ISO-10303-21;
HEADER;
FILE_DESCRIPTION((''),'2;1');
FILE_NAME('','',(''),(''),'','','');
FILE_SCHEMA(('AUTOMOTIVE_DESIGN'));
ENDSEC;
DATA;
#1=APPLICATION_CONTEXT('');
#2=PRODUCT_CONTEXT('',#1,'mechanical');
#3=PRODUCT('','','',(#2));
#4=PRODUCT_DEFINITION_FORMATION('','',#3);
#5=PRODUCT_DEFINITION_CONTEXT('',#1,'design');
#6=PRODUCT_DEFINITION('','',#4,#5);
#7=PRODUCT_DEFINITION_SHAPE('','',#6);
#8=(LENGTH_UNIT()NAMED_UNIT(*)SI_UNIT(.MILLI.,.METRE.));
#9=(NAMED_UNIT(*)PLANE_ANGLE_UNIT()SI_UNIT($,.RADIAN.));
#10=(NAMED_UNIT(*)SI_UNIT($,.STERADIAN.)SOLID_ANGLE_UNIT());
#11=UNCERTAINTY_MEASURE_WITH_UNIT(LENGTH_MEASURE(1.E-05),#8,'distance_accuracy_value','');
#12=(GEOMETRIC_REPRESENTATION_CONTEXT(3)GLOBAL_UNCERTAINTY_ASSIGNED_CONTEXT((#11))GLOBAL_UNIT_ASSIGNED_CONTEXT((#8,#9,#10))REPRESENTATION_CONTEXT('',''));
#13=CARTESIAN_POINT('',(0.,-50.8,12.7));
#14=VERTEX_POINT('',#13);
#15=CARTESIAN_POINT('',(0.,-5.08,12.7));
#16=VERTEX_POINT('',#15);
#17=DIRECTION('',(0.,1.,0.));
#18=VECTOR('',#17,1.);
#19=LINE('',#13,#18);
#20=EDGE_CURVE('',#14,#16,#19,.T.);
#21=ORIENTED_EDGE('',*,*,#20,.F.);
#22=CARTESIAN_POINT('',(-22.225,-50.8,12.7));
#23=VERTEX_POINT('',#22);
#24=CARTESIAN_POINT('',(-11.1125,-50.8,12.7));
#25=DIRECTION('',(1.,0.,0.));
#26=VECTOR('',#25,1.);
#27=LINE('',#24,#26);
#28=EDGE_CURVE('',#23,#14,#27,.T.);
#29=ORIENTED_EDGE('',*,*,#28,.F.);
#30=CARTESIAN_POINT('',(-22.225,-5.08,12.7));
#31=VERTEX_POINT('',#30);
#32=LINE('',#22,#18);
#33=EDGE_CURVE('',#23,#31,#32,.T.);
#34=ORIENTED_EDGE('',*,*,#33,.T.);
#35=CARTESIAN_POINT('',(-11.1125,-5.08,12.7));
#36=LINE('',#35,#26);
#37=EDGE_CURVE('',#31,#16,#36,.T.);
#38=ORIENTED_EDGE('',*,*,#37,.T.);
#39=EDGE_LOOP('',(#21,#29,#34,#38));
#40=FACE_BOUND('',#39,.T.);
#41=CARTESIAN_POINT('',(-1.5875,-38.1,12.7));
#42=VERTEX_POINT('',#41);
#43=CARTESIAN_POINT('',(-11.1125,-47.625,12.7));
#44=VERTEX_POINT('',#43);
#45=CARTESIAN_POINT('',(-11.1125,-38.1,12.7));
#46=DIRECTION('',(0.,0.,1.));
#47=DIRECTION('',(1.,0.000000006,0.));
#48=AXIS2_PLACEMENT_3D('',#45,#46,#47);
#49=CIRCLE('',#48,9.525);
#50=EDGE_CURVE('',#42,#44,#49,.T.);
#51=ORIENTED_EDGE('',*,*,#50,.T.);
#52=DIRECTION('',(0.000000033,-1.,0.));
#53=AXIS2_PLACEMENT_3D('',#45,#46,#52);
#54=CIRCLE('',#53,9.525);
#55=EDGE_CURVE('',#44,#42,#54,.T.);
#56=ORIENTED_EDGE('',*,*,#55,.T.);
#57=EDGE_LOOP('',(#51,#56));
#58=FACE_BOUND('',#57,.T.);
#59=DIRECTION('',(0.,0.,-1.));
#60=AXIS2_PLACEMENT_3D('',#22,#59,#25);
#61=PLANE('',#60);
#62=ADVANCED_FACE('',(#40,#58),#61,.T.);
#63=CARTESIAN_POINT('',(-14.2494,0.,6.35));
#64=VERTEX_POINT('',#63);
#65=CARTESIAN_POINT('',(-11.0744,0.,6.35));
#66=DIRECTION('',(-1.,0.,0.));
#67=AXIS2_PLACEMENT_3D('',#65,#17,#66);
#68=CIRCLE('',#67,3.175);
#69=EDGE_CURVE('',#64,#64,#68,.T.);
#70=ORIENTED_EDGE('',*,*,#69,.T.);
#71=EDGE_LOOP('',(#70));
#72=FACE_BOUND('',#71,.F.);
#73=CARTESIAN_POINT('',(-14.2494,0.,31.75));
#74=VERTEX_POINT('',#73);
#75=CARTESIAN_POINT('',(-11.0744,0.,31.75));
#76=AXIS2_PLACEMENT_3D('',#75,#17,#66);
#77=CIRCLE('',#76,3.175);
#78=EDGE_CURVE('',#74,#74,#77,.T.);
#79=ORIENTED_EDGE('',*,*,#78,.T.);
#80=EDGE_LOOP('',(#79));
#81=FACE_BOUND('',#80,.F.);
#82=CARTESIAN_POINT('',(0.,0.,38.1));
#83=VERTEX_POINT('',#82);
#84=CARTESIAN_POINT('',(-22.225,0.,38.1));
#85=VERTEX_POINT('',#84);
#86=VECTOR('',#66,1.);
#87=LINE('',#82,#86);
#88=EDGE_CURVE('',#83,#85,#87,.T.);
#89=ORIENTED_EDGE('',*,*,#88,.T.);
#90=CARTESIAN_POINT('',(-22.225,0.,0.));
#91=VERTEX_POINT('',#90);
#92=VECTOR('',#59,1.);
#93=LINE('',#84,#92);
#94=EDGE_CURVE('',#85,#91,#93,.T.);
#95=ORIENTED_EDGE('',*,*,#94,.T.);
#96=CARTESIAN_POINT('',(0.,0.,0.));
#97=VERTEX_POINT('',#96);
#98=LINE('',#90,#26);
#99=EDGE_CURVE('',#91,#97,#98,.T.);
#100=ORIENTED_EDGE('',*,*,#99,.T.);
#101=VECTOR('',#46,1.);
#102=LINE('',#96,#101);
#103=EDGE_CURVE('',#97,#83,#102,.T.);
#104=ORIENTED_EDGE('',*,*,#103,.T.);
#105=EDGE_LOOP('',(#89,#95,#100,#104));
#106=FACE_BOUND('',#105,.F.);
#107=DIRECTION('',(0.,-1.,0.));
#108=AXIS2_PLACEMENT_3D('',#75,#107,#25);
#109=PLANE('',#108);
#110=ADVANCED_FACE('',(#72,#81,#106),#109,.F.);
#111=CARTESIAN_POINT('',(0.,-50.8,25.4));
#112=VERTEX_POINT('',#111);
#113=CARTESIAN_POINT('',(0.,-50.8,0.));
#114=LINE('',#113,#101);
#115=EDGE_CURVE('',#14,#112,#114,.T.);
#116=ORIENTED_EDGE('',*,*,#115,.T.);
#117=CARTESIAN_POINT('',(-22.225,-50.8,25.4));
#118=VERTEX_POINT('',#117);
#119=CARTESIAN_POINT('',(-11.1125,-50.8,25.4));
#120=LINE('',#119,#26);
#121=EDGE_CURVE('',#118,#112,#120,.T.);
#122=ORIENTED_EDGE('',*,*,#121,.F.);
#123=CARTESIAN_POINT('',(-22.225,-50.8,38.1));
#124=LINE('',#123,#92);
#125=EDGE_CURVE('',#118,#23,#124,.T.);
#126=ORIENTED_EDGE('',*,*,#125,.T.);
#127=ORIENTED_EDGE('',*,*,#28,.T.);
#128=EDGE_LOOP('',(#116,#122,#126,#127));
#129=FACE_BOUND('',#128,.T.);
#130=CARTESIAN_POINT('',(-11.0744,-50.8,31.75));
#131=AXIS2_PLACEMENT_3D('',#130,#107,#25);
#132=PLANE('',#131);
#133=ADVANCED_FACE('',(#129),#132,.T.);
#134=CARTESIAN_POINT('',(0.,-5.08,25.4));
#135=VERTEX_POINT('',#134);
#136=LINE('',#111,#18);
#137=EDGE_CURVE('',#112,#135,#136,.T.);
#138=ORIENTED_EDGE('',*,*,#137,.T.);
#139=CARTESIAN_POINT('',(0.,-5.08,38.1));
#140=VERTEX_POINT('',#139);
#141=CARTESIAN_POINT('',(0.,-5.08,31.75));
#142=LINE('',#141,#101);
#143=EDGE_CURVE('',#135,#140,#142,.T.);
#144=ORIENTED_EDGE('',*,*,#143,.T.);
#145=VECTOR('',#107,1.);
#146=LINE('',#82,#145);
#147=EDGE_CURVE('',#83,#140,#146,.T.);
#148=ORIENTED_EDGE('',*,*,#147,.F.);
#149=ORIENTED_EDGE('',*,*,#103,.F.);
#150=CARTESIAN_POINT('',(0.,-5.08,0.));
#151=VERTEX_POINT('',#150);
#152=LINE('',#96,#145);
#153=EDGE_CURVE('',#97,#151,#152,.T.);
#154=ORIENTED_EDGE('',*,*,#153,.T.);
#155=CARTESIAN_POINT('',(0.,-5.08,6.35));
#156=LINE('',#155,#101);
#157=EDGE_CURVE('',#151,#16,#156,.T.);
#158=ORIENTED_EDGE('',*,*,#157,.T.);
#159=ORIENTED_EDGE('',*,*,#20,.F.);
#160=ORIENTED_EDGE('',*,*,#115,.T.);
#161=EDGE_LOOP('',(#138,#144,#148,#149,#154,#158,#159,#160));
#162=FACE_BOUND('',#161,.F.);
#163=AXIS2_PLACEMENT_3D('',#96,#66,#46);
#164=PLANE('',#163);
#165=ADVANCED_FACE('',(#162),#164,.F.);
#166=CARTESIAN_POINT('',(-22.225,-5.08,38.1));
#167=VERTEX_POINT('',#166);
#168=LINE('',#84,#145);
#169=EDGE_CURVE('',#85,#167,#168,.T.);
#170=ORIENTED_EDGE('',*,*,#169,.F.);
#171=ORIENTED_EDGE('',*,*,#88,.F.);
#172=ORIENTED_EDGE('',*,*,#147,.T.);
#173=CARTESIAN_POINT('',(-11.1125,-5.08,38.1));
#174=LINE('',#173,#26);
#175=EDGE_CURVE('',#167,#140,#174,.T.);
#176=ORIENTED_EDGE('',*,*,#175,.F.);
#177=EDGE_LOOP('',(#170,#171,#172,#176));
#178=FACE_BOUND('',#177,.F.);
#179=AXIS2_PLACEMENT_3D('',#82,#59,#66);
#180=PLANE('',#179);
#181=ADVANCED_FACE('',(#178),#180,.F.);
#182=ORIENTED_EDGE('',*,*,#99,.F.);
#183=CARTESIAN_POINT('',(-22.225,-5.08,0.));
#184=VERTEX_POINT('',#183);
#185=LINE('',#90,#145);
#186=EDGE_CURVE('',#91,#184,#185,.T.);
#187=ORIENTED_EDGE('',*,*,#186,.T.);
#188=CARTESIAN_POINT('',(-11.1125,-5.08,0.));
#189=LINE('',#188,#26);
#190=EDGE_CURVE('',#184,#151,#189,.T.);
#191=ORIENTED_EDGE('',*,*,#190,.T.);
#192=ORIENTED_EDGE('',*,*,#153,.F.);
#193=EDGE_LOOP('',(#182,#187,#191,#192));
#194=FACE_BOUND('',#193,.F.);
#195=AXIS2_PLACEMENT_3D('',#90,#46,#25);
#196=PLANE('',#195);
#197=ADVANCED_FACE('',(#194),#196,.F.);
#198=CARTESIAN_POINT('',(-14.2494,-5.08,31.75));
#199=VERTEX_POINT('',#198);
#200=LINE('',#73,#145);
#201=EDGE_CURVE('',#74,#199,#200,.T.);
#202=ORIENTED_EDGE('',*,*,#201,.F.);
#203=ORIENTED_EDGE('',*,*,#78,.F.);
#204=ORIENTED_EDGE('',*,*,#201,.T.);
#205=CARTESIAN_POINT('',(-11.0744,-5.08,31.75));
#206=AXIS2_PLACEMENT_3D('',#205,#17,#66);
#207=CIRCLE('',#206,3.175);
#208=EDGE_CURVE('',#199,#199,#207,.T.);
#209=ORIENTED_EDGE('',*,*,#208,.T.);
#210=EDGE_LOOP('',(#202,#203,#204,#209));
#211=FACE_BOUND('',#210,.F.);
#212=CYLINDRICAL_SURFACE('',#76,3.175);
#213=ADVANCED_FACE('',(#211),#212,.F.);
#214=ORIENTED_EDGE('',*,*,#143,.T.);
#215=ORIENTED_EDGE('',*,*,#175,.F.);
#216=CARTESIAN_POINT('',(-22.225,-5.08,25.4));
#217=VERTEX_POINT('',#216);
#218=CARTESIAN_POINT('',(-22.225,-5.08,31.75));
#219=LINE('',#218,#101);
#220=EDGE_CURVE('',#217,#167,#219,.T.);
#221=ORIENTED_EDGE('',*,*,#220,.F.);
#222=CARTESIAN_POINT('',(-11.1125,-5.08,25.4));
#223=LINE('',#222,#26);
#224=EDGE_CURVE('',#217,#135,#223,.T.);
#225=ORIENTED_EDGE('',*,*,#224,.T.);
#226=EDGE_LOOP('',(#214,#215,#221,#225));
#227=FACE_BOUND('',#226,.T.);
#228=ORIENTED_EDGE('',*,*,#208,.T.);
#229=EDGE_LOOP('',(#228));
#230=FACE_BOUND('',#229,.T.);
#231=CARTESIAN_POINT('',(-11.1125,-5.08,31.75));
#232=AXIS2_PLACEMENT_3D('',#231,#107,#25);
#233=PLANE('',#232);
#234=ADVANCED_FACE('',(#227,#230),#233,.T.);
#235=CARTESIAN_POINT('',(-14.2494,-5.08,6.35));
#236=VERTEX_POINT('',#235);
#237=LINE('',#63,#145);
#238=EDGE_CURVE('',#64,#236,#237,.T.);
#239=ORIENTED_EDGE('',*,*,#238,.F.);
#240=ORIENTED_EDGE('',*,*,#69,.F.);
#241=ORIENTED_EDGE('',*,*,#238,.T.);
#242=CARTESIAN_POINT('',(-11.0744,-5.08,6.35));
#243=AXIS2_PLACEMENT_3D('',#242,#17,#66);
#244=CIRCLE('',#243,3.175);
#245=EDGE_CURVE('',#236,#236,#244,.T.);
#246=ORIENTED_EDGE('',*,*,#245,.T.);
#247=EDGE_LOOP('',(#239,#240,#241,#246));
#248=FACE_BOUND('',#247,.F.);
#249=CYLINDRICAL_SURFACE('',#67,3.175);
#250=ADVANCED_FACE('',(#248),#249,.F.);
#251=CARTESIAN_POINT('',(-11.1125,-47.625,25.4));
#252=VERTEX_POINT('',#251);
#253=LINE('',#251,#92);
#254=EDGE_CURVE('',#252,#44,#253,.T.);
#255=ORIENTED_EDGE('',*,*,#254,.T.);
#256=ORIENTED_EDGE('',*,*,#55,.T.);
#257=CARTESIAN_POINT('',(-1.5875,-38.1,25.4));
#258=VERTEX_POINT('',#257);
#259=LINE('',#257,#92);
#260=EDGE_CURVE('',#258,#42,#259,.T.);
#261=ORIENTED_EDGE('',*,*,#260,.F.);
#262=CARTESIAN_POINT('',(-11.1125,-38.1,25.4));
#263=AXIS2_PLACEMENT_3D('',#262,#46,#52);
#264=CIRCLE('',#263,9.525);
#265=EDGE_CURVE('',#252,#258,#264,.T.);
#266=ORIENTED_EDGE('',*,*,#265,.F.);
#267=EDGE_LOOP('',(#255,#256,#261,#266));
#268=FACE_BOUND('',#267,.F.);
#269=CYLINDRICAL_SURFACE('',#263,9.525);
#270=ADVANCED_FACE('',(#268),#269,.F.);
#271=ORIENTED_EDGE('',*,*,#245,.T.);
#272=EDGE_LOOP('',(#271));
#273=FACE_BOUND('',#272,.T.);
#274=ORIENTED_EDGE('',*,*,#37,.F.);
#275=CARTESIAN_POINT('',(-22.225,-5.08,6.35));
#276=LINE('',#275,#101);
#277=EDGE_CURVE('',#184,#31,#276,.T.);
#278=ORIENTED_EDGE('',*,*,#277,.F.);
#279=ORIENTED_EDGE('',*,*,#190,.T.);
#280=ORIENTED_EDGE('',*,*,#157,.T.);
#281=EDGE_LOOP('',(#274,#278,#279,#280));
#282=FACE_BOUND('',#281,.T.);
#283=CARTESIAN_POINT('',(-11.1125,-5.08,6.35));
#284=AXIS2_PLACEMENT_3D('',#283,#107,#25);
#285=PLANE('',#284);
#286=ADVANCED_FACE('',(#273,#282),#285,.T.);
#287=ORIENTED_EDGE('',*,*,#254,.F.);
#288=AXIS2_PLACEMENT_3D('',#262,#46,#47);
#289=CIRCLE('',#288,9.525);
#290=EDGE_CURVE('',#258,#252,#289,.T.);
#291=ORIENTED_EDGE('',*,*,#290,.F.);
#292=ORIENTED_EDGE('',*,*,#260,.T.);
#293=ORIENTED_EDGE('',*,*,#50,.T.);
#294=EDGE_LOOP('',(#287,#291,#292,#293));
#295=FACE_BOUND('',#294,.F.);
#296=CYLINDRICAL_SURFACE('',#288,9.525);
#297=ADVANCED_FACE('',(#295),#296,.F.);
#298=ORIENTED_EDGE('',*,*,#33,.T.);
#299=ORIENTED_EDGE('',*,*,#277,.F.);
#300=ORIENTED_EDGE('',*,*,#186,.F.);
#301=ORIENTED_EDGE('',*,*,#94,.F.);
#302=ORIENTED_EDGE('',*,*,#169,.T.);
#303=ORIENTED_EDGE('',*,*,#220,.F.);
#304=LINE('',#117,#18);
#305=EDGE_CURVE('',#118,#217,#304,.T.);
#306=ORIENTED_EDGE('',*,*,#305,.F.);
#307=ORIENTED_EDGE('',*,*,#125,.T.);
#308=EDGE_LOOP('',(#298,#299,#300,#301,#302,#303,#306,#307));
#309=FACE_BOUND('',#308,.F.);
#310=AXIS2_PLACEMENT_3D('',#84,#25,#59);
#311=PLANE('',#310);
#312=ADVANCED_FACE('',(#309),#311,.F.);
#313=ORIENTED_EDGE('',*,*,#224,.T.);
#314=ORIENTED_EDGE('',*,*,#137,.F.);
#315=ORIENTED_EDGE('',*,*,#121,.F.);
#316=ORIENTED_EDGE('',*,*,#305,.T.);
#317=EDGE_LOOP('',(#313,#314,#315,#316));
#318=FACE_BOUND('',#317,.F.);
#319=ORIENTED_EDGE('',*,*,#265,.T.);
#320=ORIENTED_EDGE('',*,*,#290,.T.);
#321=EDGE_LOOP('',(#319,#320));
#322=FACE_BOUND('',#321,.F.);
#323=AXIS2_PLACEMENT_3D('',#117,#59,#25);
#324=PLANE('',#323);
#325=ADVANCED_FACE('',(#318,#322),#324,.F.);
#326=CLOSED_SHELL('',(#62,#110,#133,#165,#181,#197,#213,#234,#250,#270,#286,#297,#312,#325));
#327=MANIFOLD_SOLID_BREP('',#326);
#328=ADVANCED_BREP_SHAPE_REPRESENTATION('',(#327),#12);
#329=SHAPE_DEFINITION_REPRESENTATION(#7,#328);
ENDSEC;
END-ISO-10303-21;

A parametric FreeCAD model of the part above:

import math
import FreeCAD as App
import Part
import Sketcher
Q = App.Units.Quantity

doc = App.newDocument("Part")
body = doc.addObject("PartDesign::Body", "Body")

# Sketch on XZ plane
sketch1 = body.newObject("Sketcher::SketchObject", "Sketch")
sketch1.AttachmentSupport = (doc.getObject("XZ_Plane"), [""])
sketch1.MapMode = "FlatFace"
sketch1.addGeometry([
    Part.LineSegment(App.Vector(-22.2, 0, 0), App.Vector(0, 0, 0)),  # 0
    Part.LineSegment(App.Vector(0, 0, 0), App.Vector(0, 38.1, 0)),  # 1
    Part.LineSegment(App.Vector(0, 38.1, 0), App.Vector(-22.2, 38.1, 0)),  # 2
    Part.LineSegment(App.Vector(-22.2, 38.1, 0), App.Vector(-22.2, 0, 0)),  # 3
    Part.Circle(App.Vector(-11.1, 6.3, 0), App.Vector(0, 0, 1), 3.2),  # 4
    Part.Circle(App.Vector(-11.1, 31.8, 0), App.Vector(0, 0, 1), 3.2),  # 5
], False)
sketch1.addConstraint([
    Sketcher.Constraint("Coincident", 0, 2, 1, 1),
    Sketcher.Constraint("Coincident", 1, 2, 2, 1),
    Sketcher.Constraint("Coincident", 2, 2, 3, 1),
    Sketcher.Constraint("Coincident", 3, 2, 0, 1),
    Sketcher.Constraint("Horizontal", 0),
    Sketcher.Constraint("Vertical", 1),
    Sketcher.Constraint("Horizontal", 2),
    Sketcher.Constraint("Vertical", 3),
    Sketcher.Constraint("Coincident", 0, 2, -1, 1),
    Sketcher.Constraint("Equal", 4, 5),
    Sketcher.Constraint("Vertical", 4, 3, 5, 3),
    Sketcher.Constraint("Diameter", 4, Q("0.25 in")),
    Sketcher.Constraint("DistanceY", 1, 1, 1, 2, Q("1.5 in")),
    Sketcher.Constraint("DistanceY", 4, 3, 5, 3, Q("1 in")),
    Sketcher.Constraint("DistanceX", 0, 1, 0, 2, Q("0.875 in")),
    Sketcher.Constraint("DistanceY", -1, 1, 4, 3, Q("0.25 in")),
    Sketcher.Constraint("DistanceX", 4, 3, -1, 1, Q("0.436 in")),
])
pad1 = body.newObject("PartDesign::Pad", "Pad")
pad1.Profile = sketch1
pad1.Length = Q("2 in")

# Sketch on XZ plane
sketch2 = body.newObject("Sketcher::SketchObject", "Sketch001")
sketch2.AttachmentSupport = (doc.getObject("XZ_Plane"), [""])
sketch2.MapMode = "FlatFace"
sketch2.AttachmentOffset = App.Placement(App.Vector(0, 0, 2 * 25.4), App.Rotation())
sketch2.addGeometry([
    Part.LineSegment(App.Vector(-22, 38, 0), App.Vector(-22, 25, 0)),  # 0
    Part.LineSegment(App.Vector(-22, 25, 0), App.Vector(0, 25, 0)),  # 1
    Part.LineSegment(App.Vector(0, 25, 0), App.Vector(0, 38, 0)),  # 2
    Part.LineSegment(App.Vector(0, 38, 0), App.Vector(-22, 38, 0)),  # 3
    Part.LineSegment(App.Vector(-22, 13, 0), App.Vector(-22, 0, 0)),  # 4
    Part.LineSegment(App.Vector(-22, 0, 0), App.Vector(0, 0, 0)),  # 5
    Part.LineSegment(App.Vector(0, 0, 0), App.Vector(0, 13, 0)),  # 6
    Part.LineSegment(App.Vector(0, 13, 0), App.Vector(-22, 13, 0)),  # 7
], False)
sketch2.addConstraint([
    Sketcher.Constraint("Coincident", 0, 2, 1, 1),
    Sketcher.Constraint("Coincident", 1, 2, 2, 1),
    Sketcher.Constraint("Coincident", 2, 2, 3, 1),
    Sketcher.Constraint("Coincident", 3, 2, 0, 1),
    Sketcher.Constraint("Coincident", 4, 2, 5, 1),
    Sketcher.Constraint("Coincident", 5, 2, 6, 1),
    Sketcher.Constraint("Coincident", 6, 2, 7, 1),
    Sketcher.Constraint("Coincident", 7, 2, 4, 1),
    Sketcher.Constraint("Vertical", 0),
    Sketcher.Constraint("Horizontal", 1),
    Sketcher.Constraint("Vertical", 2),
    Sketcher.Constraint("Horizontal", 3),
    Sketcher.Constraint("Vertical", 4),
    Sketcher.Constraint("Horizontal", 5),
    Sketcher.Constraint("Vertical", 6),
    Sketcher.Constraint("Horizontal", 7),
    Sketcher.Constraint("Coincident", 5, 2, -1, 1),
    Sketcher.Constraint("PointOnObject", 1, 2, -2),
    Sketcher.Constraint("Vertical", 3, 2, 4, 2),
    Sketcher.Constraint("Equal", 2, 4),
    Sketcher.Constraint("DistanceY", 0, 2, 0, 1, Q("0.5 in")),
    Sketcher.Constraint("DistanceY", -1, 1, 0, 2, Q("1 in")),
    Sketcher.Constraint("DistanceX", 1, 1, 1, 2, Q("0.875 in")),
])
pocket1 = body.newObject("PartDesign::Pocket", "Pocket")
pocket1.Profile = sketch2
pocket1.Length = Q("1.8 in")

# Sketch on XY plane
sketch3 = body.newObject("Sketcher::SketchObject", "Sketch002")
sketch3.AttachmentSupport = (doc.getObject("XY_Plane"), [""])
sketch3.MapMode = "FlatFace"
sketch3.AttachmentOffset = App.Placement(App.Vector(0, 0, 1 * 25.4), App.Rotation())
sketch3.addGeometry([
    Part.ArcOfCircle(Part.Circle(App.Vector(-11, -38, 0), App.Vector(0, 0, 1), 10), math.radians(-90), math.radians(0)),
    Part.ArcOfCircle(Part.Circle(App.Vector(-11, -38, 0), App.Vector(0, 0, 1), 10), math.radians(0), math.radians(270)),
], False)
sketch3.addConstraint([
    Sketcher.Constraint("Tangent", 0, 1, 1, 2),
    Sketcher.Constraint("Coincident", 1, 1, 0, 2),
    Sketcher.Constraint("Horizontal", 0, 3, 1, 1),
    Sketcher.Constraint("Vertical", 1, 3, 0, 1),
    Sketcher.Constraint("Radius", 0, Q("0.375 in")),
    Sketcher.Constraint("DistanceY", 0, 3, -1, 1, Q("1.5 in")),
    Sketcher.Constraint("DistanceX", 0, 3, -1, 1, Q("0.4375 in")),
])
pocket2 = body.newObject("PartDesign::Pocket", "Pocket001")
pocket2.Profile = sketch3
pocket2.Type = "ThroughAll"

doc.recompute()
